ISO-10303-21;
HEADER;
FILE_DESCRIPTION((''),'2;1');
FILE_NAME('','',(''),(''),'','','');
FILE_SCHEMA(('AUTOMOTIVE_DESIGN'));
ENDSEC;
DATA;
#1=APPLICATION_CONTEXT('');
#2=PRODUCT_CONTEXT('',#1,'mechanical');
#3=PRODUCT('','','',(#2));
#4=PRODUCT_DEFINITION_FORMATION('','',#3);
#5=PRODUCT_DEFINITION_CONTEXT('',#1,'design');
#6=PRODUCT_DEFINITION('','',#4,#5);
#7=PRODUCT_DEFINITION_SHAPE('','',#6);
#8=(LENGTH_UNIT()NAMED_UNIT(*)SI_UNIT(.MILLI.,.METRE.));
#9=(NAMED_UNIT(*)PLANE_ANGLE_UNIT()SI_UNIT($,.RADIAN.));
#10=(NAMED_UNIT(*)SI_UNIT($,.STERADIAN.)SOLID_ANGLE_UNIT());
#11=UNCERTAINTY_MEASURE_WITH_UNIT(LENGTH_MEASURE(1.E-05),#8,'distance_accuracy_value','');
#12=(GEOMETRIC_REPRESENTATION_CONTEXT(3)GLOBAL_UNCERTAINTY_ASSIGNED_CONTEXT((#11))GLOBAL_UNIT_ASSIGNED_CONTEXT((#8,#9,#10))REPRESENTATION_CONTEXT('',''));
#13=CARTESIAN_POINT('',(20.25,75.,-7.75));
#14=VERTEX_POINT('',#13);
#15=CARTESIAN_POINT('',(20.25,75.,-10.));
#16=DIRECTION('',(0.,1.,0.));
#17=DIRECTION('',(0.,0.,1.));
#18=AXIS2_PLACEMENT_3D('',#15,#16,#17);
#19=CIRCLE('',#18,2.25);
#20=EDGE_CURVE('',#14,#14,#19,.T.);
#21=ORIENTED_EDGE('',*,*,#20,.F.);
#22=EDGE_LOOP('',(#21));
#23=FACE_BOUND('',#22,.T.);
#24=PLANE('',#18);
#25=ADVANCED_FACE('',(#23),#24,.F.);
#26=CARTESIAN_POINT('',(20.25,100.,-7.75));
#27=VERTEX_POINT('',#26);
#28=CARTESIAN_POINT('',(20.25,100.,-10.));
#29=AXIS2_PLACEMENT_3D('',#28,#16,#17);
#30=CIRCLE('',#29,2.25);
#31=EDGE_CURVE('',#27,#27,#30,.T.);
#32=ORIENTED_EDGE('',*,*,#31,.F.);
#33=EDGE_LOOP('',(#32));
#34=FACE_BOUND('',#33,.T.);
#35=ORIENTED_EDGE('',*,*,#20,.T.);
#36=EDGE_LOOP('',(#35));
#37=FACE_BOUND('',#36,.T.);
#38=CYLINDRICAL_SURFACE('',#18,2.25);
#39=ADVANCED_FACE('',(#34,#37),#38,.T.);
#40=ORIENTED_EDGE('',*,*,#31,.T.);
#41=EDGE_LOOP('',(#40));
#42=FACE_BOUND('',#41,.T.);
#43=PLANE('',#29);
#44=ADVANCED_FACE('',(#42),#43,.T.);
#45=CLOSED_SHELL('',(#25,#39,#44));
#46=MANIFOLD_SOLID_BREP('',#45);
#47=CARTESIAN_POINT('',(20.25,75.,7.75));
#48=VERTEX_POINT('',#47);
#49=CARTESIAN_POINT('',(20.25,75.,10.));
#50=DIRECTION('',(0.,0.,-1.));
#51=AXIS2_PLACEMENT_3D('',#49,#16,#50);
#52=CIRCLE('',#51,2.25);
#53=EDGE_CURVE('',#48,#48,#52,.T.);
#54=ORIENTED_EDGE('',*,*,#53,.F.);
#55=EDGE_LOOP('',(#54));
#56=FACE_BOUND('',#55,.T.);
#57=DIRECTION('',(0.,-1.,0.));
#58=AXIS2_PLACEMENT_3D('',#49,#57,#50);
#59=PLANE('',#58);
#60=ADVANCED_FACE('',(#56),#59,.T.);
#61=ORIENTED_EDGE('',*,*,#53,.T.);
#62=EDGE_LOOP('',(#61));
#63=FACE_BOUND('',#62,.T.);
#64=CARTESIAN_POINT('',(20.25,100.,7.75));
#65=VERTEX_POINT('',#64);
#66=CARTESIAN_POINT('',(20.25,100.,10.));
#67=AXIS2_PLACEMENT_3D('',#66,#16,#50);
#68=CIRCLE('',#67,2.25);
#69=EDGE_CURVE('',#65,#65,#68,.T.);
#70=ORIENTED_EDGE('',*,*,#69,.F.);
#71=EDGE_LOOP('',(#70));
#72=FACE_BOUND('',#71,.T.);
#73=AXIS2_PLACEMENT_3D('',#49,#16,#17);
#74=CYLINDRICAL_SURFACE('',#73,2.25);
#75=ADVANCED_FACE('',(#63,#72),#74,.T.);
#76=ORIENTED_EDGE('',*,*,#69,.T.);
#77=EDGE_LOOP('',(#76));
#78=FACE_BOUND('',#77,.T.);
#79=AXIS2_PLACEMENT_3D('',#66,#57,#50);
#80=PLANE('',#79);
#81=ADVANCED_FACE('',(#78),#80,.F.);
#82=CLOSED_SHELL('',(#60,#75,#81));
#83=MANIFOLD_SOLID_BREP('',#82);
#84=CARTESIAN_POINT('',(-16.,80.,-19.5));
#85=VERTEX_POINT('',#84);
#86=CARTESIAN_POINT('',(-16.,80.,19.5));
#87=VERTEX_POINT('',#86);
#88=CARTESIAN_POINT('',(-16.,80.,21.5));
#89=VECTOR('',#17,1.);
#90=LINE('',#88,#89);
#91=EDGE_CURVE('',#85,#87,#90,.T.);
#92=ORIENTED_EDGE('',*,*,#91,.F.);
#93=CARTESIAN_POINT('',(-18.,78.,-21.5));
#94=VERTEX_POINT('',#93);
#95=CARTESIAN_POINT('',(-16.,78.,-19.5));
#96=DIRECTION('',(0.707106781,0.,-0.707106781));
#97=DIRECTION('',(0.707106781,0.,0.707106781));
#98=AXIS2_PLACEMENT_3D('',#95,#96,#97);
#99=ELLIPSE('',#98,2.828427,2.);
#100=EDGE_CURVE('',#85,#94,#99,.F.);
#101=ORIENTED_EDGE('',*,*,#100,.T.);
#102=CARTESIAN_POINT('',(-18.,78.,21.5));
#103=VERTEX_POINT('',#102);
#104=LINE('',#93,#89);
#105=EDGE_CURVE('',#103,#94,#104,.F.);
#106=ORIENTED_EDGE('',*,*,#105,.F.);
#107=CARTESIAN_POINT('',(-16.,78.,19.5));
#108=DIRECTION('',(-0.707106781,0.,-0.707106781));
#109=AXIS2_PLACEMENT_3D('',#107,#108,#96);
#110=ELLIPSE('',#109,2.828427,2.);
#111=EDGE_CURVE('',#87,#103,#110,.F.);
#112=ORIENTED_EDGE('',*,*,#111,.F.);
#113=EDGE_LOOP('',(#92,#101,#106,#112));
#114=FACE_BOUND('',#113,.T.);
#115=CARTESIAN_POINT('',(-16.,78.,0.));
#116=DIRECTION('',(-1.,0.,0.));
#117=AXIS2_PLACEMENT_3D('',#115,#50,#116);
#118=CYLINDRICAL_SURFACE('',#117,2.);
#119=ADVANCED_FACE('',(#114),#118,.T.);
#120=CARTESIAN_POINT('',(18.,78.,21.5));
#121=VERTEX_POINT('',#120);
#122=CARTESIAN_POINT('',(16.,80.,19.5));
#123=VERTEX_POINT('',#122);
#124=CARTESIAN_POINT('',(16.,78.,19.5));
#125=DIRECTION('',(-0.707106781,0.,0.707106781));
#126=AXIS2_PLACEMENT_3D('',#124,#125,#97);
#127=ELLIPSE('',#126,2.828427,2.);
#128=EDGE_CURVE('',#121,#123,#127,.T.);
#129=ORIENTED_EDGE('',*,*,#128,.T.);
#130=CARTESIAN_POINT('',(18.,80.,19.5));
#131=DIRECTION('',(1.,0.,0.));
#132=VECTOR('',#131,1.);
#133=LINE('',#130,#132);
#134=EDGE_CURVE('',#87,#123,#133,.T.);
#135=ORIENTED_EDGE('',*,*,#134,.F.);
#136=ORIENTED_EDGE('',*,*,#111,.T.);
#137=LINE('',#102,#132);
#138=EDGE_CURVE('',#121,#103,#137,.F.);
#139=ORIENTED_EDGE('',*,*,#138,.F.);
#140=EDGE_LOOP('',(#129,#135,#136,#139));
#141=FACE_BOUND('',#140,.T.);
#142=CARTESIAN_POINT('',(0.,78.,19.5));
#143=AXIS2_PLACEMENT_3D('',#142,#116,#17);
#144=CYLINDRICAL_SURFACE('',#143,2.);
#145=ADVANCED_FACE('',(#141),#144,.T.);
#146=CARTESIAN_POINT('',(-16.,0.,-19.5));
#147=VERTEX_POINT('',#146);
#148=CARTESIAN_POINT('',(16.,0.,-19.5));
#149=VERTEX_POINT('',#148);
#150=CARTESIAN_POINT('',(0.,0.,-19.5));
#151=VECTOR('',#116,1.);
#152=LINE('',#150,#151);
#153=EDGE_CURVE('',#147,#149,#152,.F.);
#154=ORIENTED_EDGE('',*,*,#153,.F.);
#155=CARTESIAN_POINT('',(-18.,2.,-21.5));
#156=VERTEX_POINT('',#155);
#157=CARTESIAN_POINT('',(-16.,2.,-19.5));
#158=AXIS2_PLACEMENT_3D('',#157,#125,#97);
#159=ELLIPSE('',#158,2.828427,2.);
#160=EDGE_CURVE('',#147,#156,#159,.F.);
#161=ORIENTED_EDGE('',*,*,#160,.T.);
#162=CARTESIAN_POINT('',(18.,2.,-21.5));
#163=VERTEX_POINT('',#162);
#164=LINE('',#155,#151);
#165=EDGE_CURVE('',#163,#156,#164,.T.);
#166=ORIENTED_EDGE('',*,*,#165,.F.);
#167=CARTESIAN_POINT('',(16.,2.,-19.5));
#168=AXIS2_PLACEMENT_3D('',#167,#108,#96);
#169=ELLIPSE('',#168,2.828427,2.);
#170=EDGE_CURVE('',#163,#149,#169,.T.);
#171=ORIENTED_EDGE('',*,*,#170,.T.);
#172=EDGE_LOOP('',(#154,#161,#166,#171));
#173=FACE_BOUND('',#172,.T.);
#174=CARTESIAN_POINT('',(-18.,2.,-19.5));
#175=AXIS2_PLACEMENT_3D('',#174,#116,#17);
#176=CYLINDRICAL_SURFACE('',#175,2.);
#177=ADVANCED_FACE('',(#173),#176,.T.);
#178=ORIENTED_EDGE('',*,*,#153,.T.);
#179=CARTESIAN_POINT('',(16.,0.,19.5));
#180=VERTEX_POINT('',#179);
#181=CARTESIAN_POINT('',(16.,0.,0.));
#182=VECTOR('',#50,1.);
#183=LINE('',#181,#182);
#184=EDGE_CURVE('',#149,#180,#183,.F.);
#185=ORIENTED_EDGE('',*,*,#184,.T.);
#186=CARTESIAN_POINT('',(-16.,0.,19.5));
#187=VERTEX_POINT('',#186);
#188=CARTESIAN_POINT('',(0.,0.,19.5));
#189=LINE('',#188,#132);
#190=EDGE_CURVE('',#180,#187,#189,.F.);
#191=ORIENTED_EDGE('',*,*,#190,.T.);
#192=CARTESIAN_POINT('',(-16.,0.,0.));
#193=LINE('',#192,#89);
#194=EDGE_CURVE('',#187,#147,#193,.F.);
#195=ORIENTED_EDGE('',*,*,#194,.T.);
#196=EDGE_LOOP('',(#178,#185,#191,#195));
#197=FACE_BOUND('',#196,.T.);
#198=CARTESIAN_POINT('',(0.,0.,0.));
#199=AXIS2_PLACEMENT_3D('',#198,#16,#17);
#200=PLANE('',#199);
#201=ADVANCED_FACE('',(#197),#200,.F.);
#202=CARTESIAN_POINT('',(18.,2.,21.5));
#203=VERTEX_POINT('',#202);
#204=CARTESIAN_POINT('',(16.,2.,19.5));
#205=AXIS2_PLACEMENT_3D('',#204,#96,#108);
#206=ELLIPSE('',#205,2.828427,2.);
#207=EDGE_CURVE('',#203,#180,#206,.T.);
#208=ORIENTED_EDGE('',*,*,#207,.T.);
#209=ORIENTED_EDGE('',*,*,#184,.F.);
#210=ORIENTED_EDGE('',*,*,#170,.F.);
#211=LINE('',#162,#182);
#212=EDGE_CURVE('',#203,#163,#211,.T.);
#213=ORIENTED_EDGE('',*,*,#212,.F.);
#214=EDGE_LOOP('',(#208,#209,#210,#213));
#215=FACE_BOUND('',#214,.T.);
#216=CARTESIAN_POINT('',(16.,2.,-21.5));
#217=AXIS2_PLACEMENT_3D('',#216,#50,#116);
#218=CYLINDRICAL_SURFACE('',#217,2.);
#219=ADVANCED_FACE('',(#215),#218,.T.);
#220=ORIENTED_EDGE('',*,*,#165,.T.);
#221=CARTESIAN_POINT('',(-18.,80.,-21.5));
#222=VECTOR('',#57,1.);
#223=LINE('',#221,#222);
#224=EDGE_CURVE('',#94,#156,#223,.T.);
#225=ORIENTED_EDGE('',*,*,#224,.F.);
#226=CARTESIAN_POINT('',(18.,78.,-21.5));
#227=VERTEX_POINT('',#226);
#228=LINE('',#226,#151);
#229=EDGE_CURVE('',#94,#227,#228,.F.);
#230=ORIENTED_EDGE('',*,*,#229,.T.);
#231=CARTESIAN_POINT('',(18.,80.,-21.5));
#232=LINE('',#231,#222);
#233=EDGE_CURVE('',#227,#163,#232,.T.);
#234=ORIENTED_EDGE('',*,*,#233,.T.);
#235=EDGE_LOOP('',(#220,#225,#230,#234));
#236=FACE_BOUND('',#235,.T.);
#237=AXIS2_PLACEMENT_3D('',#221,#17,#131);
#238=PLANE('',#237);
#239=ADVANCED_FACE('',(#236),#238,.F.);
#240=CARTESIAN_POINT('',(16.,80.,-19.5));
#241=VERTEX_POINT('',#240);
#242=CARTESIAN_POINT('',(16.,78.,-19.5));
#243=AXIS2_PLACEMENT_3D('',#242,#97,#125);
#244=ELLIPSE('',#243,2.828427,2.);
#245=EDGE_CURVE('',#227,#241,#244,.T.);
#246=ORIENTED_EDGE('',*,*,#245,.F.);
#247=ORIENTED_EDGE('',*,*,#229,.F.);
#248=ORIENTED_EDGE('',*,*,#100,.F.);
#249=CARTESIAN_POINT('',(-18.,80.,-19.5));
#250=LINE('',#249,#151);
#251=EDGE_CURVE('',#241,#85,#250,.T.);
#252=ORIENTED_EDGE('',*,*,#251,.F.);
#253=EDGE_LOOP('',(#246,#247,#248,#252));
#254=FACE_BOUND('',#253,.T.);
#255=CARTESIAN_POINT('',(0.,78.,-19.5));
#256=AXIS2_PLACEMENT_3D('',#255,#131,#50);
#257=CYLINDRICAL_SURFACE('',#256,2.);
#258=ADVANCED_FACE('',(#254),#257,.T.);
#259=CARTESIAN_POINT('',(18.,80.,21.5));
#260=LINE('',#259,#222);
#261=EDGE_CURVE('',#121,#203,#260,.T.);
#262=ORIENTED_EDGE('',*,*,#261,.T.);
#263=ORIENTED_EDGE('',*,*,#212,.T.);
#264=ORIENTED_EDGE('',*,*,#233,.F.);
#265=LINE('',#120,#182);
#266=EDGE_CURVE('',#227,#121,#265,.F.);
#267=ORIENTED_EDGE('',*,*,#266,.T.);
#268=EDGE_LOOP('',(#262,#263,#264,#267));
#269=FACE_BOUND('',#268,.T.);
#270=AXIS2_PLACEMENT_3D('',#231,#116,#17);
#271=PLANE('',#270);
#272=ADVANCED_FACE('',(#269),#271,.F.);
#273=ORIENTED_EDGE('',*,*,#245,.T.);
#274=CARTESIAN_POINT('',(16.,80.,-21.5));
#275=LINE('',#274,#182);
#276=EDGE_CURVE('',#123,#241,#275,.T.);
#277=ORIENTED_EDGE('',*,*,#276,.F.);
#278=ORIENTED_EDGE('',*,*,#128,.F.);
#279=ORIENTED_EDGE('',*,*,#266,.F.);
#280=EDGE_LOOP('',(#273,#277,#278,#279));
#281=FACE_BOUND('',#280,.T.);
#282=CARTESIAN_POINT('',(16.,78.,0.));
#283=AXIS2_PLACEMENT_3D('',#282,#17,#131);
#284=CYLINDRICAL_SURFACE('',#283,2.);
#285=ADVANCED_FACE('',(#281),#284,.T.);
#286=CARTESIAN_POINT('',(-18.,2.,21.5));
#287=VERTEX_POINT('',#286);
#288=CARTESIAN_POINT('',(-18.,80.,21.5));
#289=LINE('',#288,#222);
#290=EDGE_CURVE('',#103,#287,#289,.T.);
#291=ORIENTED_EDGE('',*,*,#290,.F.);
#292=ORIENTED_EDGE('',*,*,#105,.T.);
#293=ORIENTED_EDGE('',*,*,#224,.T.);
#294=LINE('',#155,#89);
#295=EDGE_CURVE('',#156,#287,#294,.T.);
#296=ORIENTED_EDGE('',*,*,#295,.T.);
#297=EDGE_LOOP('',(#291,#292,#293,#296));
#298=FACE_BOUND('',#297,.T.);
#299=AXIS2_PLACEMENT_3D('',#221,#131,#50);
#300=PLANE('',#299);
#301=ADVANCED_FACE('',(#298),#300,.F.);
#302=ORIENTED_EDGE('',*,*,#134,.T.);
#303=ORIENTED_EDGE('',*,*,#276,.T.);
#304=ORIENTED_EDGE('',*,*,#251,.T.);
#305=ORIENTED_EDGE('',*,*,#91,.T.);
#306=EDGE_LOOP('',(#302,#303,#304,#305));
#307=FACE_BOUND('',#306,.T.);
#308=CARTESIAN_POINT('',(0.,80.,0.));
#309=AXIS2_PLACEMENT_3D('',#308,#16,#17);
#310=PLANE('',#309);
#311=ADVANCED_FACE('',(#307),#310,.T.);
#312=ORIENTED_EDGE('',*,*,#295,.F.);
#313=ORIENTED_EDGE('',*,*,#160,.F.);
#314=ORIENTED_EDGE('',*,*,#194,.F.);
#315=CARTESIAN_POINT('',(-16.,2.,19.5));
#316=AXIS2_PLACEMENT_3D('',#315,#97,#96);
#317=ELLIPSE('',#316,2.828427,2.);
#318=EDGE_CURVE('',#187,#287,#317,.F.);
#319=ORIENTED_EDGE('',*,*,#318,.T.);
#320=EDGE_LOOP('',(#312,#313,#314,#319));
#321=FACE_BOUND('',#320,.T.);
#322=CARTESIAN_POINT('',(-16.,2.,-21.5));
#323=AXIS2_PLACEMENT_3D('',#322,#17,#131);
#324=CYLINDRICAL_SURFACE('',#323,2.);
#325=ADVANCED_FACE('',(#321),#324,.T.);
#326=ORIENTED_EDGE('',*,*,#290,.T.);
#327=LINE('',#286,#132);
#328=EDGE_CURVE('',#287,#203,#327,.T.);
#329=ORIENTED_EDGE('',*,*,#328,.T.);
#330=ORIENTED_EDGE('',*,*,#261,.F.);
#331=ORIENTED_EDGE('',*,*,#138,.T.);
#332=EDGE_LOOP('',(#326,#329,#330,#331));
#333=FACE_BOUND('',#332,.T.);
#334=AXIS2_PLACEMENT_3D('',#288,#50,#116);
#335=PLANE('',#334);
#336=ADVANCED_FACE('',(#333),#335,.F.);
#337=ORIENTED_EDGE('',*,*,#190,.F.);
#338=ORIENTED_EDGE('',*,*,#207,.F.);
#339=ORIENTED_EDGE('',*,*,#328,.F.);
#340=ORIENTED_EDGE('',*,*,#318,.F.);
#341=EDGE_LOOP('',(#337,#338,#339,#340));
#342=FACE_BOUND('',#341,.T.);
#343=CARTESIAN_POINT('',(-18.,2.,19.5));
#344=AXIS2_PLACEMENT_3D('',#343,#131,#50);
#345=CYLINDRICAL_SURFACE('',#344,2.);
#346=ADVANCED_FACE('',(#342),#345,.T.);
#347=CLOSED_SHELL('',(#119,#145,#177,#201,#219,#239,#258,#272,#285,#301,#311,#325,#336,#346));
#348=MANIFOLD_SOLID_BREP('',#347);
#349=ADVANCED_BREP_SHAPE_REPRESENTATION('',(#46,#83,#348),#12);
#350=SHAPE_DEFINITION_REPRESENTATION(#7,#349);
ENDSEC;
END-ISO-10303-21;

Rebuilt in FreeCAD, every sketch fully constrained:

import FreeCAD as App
import Part
import Sketcher


def edges_at(feature, points):
    """Names of the edges that pass closest to the given points."""
    edges = feature.Shape.Edges
    near = lambda p: min(range(len(edges)), key=lambda i: edges[i].distToShape(Part.Vertex(*p))[0])
    return sorted({f"Edge{near(p) + 1}" for p in points})

doc = App.newDocument("Part")
params = doc.addObject("Spreadsheet::Sheet", "Params")
for row, (alias, value) in enumerate([
    ("sketch1_width", "36 mm"),
    ("sketch1_height", "43 mm"),
    ("pad1_length", "80 mm"),
    ("fillet_radius", "2 mm"),
    ("sketch2_diameter", "4.5 mm"),
    ("pad2_length", "20 mm"),
    ("pad2_length2", "5 mm"),
    ("sketch3_diameter", "4.5 mm"),
    ("pad3_length", "20 mm"),
    ("pad3_length2", "5 mm"),
], start=1):
    params.set(f"A{row}", alias)
    params.set(f"B{row}", "=" + value)
    params.setAlias(f"B{row}", alias)

body = doc.addObject("PartDesign::Body", "Body")

sketch1 = doc.addObject("Sketcher::SketchObject", "Sketch")
body.addObject(sketch1)
sketch1.AttachmentSupport = (doc.XZ_Plane, [""])
sketch1.MapMode = "FlatFace"
sketch1.addGeometry([
    Part.LineSegment(App.Vector(-18, -22, 0), App.Vector(-18, 22, 0)),
    Part.LineSegment(App.Vector(-18, 22, 0), App.Vector(18, 22, 0)),
    Part.LineSegment(App.Vector(18, 22, 0), App.Vector(18, -22, 0)),
    Part.LineSegment(App.Vector(18, -22, 0), App.Vector(-18, -22, 0)),
], False)
sketch1.addConstraint([
    Sketcher.Constraint("Coincident", 0, 2, 1, 1),
    Sketcher.Constraint("Coincident", 1, 2, 2, 1),
    Sketcher.Constraint("Coincident", 2, 2, 3, 1),
    Sketcher.Constraint("Coincident", 3, 2, 0, 1),
    Sketcher.Constraint("Vertical", 0),
    Sketcher.Constraint("Horizontal", 1),
    Sketcher.Constraint("Vertical", 2),
    Sketcher.Constraint("Horizontal", 3),
    Sketcher.Constraint("Symmetric", 0, 2, 2, 2, -1, 1),
    Sketcher.Constraint("DistanceX", 1, 1, 1, 2, 36.0),
    Sketcher.Constraint("DistanceY", 0, 1, 0, 2, 43.0),
])
sketch1.setExpression("Constraints[9]", "Params.sketch1_width")
sketch1.setExpression("Constraints[10]", "Params.sketch1_height")
pad1 = doc.addObject("PartDesign::Pad", "Pad")
body.addObject(pad1)
pad1.Profile = sketch1
pad1.setExpression("Length", "Params.pad1_length")
pad1.Reversed = True
doc.recompute()

fillet = doc.addObject("PartDesign::Fillet", "Fillet")
body.addObject(fillet)
fillet.Base = (pad1, edges_at(pad1, [
    (-18, 80, 0),
    (0, 80, 21.5),
    (18, 80, 0),
    (0, 0, 21.5),
    (-18, 0, 0),
    (0, 0, -21.5),
    (18, 0, 0),
    (0, 80, -21.5),
]))
fillet.setExpression("Radius", "Params.fillet_radius")
body2 = doc.addObject("PartDesign::Body", "Body001")

sketch2 = doc.addObject("Sketcher::SketchObject", "Sketch001")
body2.addObject(sketch2)
sketch2.AttachmentSupport = (doc.getObject("XZ_Plane001"), [""])
sketch2.MapMode = "FlatFace"
sketch2.AttachmentOffset = App.Placement(App.Vector(0, 0, -80), App.Rotation())
sketch2.addGeometry(Part.Circle(App.Vector(20.2, -10, 0), App.Vector(0, 0, 1), 2.2), False)
sketch2.addConstraint([
    Sketcher.Constraint("Diameter", 0, 4.5),
    Sketcher.Constraint("DistanceY", 0, 3, -1, 1, 10.0),
    Sketcher.Constraint("DistanceX", -1, 1, 0, 3, 20.25),
])
sketch2.setExpression("Constraints[0]", "Params.sketch2_diameter")
pad2 = doc.addObject("PartDesign::Pad", "Pad001")
body2.addObject(pad2)
pad2.Profile = sketch2
pad2.Type = "TwoLengths"
pad2.setExpression("Length", "Params.pad2_length")
pad2.setExpression("Length2", "Params.pad2_length2")
pad2.Reversed = True
body3 = doc.addObject("PartDesign::Body", "Body002")

sketch3 = doc.addObject("Sketcher::SketchObject", "Sketch002")
body3.addObject(sketch3)
sketch3.AttachmentSupport = (doc.getObject("XZ_Plane002"), [""])
sketch3.MapMode = "FlatFace"
sketch3.AttachmentOffset = App.Placement(App.Vector(0, 0, -80), App.Rotation())
sketch3.addGeometry(Part.Circle(App.Vector(20.2, 10, 0), App.Vector(0, 0, 1), 2.2), False)
sketch3.addConstraint([
    Sketcher.Constraint("Diameter", 0, 4.5),
    Sketcher.Constraint("DistanceY", -1, 1, 0, 3, 10.0),
    Sketcher.Constraint("DistanceX", -1, 1, 0, 3, 20.25),
])
sketch3.setExpression("Constraints[0]", "Params.sketch3_diameter")
pad3 = doc.addObject("PartDesign::Pad", "Pad002")
body3.addObject(pad3)
pad3.Profile = sketch3
pad3.Type = "TwoLengths"
pad3.setExpression("Length", "Params.pad3_length")
pad3.setExpression("Length2", "Params.pad3_length2")
pad3.Reversed = True

doc.recompute()
